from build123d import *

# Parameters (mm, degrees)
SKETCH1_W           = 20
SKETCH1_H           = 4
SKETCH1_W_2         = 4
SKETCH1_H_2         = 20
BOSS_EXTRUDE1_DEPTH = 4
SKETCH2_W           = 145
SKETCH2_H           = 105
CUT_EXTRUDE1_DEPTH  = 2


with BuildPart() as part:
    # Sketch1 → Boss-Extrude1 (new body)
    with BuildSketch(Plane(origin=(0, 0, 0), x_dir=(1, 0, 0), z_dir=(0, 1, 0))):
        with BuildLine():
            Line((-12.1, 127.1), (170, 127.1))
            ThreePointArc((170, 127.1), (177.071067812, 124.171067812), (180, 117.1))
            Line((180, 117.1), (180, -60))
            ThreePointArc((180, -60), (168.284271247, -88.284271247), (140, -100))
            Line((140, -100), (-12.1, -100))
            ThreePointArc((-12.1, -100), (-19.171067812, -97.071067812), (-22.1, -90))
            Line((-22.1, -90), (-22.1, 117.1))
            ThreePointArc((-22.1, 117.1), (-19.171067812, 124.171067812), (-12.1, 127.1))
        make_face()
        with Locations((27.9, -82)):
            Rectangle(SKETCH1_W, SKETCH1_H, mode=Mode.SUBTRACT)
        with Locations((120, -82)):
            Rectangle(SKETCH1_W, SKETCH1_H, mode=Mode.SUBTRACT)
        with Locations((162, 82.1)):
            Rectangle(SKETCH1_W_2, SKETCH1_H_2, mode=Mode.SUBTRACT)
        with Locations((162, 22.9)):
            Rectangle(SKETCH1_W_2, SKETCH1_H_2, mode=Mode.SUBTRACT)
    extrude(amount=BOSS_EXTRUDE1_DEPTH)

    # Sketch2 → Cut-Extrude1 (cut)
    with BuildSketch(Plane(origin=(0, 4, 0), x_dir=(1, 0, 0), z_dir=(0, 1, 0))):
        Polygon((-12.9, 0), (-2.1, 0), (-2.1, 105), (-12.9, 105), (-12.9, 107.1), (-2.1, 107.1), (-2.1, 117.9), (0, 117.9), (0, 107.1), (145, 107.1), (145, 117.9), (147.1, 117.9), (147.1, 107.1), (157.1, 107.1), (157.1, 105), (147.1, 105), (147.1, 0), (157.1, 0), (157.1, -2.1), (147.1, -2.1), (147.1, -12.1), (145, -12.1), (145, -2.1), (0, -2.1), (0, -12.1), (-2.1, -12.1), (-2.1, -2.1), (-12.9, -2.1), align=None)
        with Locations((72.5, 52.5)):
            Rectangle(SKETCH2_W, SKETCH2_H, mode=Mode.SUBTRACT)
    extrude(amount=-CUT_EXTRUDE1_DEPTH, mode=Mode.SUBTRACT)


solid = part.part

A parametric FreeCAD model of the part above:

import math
import FreeCAD as App
import Part
import Sketcher
from FreeCAD import Vector

doc = App.newDocument("Part")
body = doc.addObject("PartDesign::Body", "Body")

# Sketch on XZ plane
sketch1 = body.newObject("Sketcher::SketchObject", "Sketch")
sketch1.AttachmentSupport = (doc.getObject("XZ_Plane"), [""])
sketch1.MapMode = "FlatFace"
sketch1.addGeometry(Part.LineSegment(Vector(170, -127.1, 0), Vector(-12.1, -127.1, 0)), False)
sketch1.addGeometry(Part.ArcOfCircle(Part.Circle(Vector(-12.1, -117.1, 0), Vector(0, 0, 1), 10), math.radians(180), math.radians(270)), False)
sketch1.addGeometry(Part.LineSegment(Vector(-22.1, -117.1, 0), Vector(-22.1, 90, 0)), False)
sketch1.addGeometry(Part.ArcOfCircle(Part.Circle(Vector(-12.1, 90, 0), Vector(0, 0, 1), 10), math.radians(90), math.radians(180)), False)
sketch1.addGeometry(Part.LineSegment(Vector(-12.1, 100, 0), Vector(140, 100, 0)), False)
sketch1.addGeometry(Part.ArcOfCircle(Part.Circle(Vector(140, 60, 0), Vector(0, 0, 1), 40), math.radians(0), math.radians(90)), False)
sketch1.addGeometry(Part.LineSegment(Vector(180, 60, 0), Vector(180, -117.1, 0)), False)
sketch1.addGeometry(Part.ArcOfCircle(Part.Circle(Vector(170, -117.1, 0), Vector(0, 0, 1), 10), math.radians(-90), math.radians(0)), False)
sketch1.addGeometry(Part.LineSegment(Vector(110, 84, 0), Vector(110, 80, 0)), False)
sketch1.addGeometry(Part.LineSegment(Vector(110, 80, 0), Vector(130, 80, 0)), False)
sketch1.addGeometry(Part.LineSegment(Vector(130, 80, 0), Vector(130, 84, 0)), False)
sketch1.addGeometry(Part.LineSegment(Vector(130, 84, 0), Vector(110, 84, 0)), False)
sketch1.addGeometry(Part.LineSegment(Vector(17.9, 84, 0), Vector(17.9, 80, 0)), False)
sketch1.addGeometry(Part.LineSegment(Vector(17.9, 80, 0), Vector(37.9, 80, 0)), False)
sketch1.addGeometry(Part.LineSegment(Vector(37.9, 80, 0), Vector(37.9, 84, 0)), False)
sketch1.addGeometry(Part.LineSegment(Vector(37.9, 84, 0), Vector(17.9, 84, 0)), False)
sketch1.addGeometry(Part.LineSegment(Vector(160, -12.9, 0), Vector(160, -32.9, 0)), False)
sketch1.addGeometry(Part.LineSegment(Vector(160, -32.9, 0), Vector(164, -32.9, 0)), False)
sketch1.addGeometry(Part.LineSegment(Vector(164, -32.9, 0), Vector(164, -12.9, 0)), False)
sketch1.addGeometry(Part.LineSegment(Vector(164, -12.9, 0), Vector(160, -12.9, 0)), False)
sketch1.addGeometry(Part.LineSegment(Vector(160, -72.1, 0), Vector(160, -92.1, 0)), False)
sketch1.addGeometry(Part.LineSegment(Vector(160, -92.1, 0), Vector(164, -92.1, 0)), False)
sketch1.addGeometry(Part.LineSegment(Vector(164, -92.1, 0), Vector(164, -72.1, 0)), False)
sketch1.addGeometry(Part.LineSegment(Vector(164, -72.1, 0), Vector(160, -72.1, 0)), False)
sketch1.addConstraint(Sketcher.Constraint("Tangent", 0, 2, 1, 2))
sketch1.addConstraint(Sketcher.Constraint("Tangent", 1, 1, 2, 1))
sketch1.addConstraint(Sketcher.Constraint("Tangent", 2, 2, 3, 2))
sketch1.addConstraint(Sketcher.Constraint("Tangent", 3, 1, 4, 1))
sketch1.addConstraint(Sketcher.Constraint("Tangent", 4, 2, 5, 2))
sketch1.addConstraint(Sketcher.Constraint("Tangent", 5, 1, 6, 1))
sketch1.addConstraint(Sketcher.Constraint("Tangent", 6, 2, 7, 2))
sketch1.addConstraint(Sketcher.Constraint("Tangent", 7, 1, 0, 1))
sketch1.addConstraint(Sketcher.Constraint("Coincident", 8, 2, 9, 1))
sketch1.addConstraint(Sketcher.Constraint("Coincident", 9, 2, 10, 1))
sketch1.addConstraint(Sketcher.Constraint("Coincident", 10, 2, 11, 1))
sketch1.addConstraint(Sketcher.Constraint("Coincident", 11, 2, 8, 1))
sketch1.addConstraint(Sketcher.Constraint("Coincident", 12, 2, 13, 1))
sketch1.addConstraint(Sketcher.Constraint("Coincident", 13, 2, 14, 1))
sketch1.addConstraint(Sketcher.Constraint("Coincident", 14, 2, 15, 1))
sketch1.addConstraint(Sketcher.Constraint("Coincident", 15, 2, 12, 1))
sketch1.addConstraint(Sketcher.Constraint("Coincident", 16, 2, 17, 1))
sketch1.addConstraint(Sketcher.Constraint("Coincident", 17, 2, 18, 1))
sketch1.addConstraint(Sketcher.Constraint("Coincident", 18, 2, 19, 1))
sketch1.addConstraint(Sketcher.Constraint("Coincident", 19, 2, 16, 1))
sketch1.addConstraint(Sketcher.Constraint("Coincident", 20, 2, 21, 1))
sketch1.addConstraint(Sketcher.Constraint("Coincident", 21, 2, 22, 1))
sketch1.addConstraint(Sketcher.Constraint("Coincident", 22, 2, 23, 1))
sketch1.addConstraint(Sketcher.Constraint("Coincident", 23, 2, 20, 1))
sketch1.addConstraint(Sketcher.Constraint("Horizontal", 0))
sketch1.addConstraint(Sketcher.Constraint("Vertical", 2))
sketch1.addConstraint(Sketcher.Constraint("Horizontal", 4))
sketch1.addConstraint(Sketcher.Constraint("Vertical", 6))
sketch1.addConstraint(Sketcher.Constraint("Vertical", 8))
sketch1.addConstraint(Sketcher.Constraint("Horizontal", 9))
sketch1.addConstraint(Sketcher.Constraint("Vertical", 10))
sketch1.addConstraint(Sketcher.Constraint("Horizontal", 11))
sketch1.addConstraint(Sketcher.Constraint("Vertical", 12))
sketch1.addConstraint(Sketcher.Constraint("Horizontal", 13))
sketch1.addConstraint(Sketcher.Constraint("Vertical", 14))
sketch1.addConstraint(Sketcher.Constraint("Horizontal", 15))
sketch1.addConstraint(Sketcher.Constraint("Vertical", 16))
sketch1.addConstraint(Sketcher.Constraint("Horizontal", 17))
sketch1.addConstraint(Sketcher.Constraint("Vertical", 18))
sketch1.addConstraint(Sketcher.Constraint("Horizontal", 19))
sketch1.addConstraint(Sketcher.Constraint("Vertical", 20))
sketch1.addConstraint(Sketcher.Constraint("Horizontal", 21))
sketch1.addConstraint(Sketcher.Constraint("Vertical", 22))
sketch1.addConstraint(Sketcher.Constraint("Horizontal", 23))
sketch1.addConstraint(Sketcher.Constraint("Equal", 1, 3))
sketch1.addConstraint(Sketcher.Constraint("Equal", 3, 7))
sketch1.addConstraint(Sketcher.Constraint("Horizontal", 9, 2, 12, 2))
sketch1.addConstraint(Sketcher.Constraint("Horizontal", 11, 2, 14, 2))
sketch1.addConstraint(Sketcher.Constraint("Vertical", 19, 2, 20, 2))
sketch1.addConstraint(Sketcher.Constraint("Vertical", 18, 2, 21, 2))
sketch1.addConstraint(Sketcher.Constraint("Equal", 11, 13))
sketch1.addConstraint(Sketcher.Constraint("Equal", 23, 8))
sketch1.addConstraint(Sketcher.Constraint("Equal", 15, 16))
sketch1.addConstraint(Sketcher.Constraint("Equal", 18, 20))
sketch1.addConstraint(Sketcher.Constraint("Radius", 1, 10.0))
sketch1.addConstraint(Sketcher.Constraint("Radius", 5, 40.0))
sketch1.addConstraint(Sketcher.Constraint("DistanceX", 9, 1, 9, 2, 20.0))
sketch1.addConstraint(Sketcher.Constraint("DistanceX", 17, 1, 17, 2, 4.0))
sketch1.addConstraint(Sketcher.Constraint("DistanceX", 0, 2, 0, 1, 182.1))
sketch1.addConstraint(Sketcher.Constraint("DistanceY", 2, 1, 2, 2, 207.1))
sketch1.addConstraint(Sketcher.Constraint("DistanceY", -1, 1, 3, 3, 90.0))
sketch1.addConstraint(Sketcher.Constraint("DistanceX", -1, 1, 5, 3, 140.0))
sketch1.addConstraint(Sketcher.Constraint("DistanceX", -1, 1, 8, 2, 110.0))
sketch1.addConstraint(Sketcher.Constraint("DistanceY", -1, 1, 8, 2, 80.0))
sketch1.addConstraint(Sketcher.Constraint("DistanceX", -1, 1, 16, 2, 160.0))
sketch1.addConstraint(Sketcher.Constraint("DistanceX", 3, 3, 12, 2, 30.0))
sketch1.addConstraint(Sketcher.Constraint("DistanceY", 7, 3, 20, 2, 25.0))
sketch1.addConstraint(Sketcher.Constraint("DistanceY", 16, 2, -1, 1, 32.9))
pad1 = body.newObject("PartDesign::Pad", "Pad")
pad1.Profile = sketch1
pad1.Length = 4
pad1.Reversed = True

# Sketch on XZ plane
sketch2 = body.newObject("Sketcher::SketchObject", "Sketch001")
sketch2.AttachmentSupport = (doc.getObject("XZ_Plane"), [""])
sketch2.MapMode = "FlatFace"
sketch2.AttachmentOffset = App.Placement(Vector(0, 0, -4), App.Rotation())
sketch2.addGeometry(Part.LineSegment(Vector(-2.1, 0, 0), Vector(-12.9, 0, 0)), False)
sketch2.addGeometry(Part.LineSegment(Vector(-12.9, 0, 0), Vector(-12.9, 2.1, 0)), False)
sketch2.addGeometry(Part.LineSegment(Vector(-12.9, 2.1, 0), Vector(-2.1, 2.1, 0)), False)
sketch2.addGeometry(Part.LineSegment(Vector(-2.1, 2.1, 0), Vector(-2.1, 12.1, 0)), False)
sketch2.addGeometry(Part.LineSegment(Vector(-2.1, 12.1, 0), Vector(0, 12.1, 0)), False)
sketch2.addGeometry(Part.LineSegment(Vector(0, 12.1, 0), Vector(0, 2.1, 0)), False)
sketch2.addGeometry(Part.LineSegment(Vector(0, 2.1, 0), Vector(145, 2.1, 0)), False)
sketch2.addGeometry(Part.LineSegment(Vector(145, 2.1, 0), Vector(145, 12.1, 0)), False)
sketch2.addGeometry(Part.LineSegment(Vector(145, 12.1, 0), Vector(147.1, 12.1, 0)), False)
sketch2.addGeometry(Part.LineSegment(Vector(147.1, 12.1, 0), Vector(147.1, 2.1, 0)), False)
sketch2.addGeometry(Part.LineSegment(Vector(147.1, 2.1, 0), Vector(157.1, 2.1, 0)), False)
sketch2.addGeometry(Part.LineSegment(Vector(157.1, 2.1, 0), Vector(157.1, 0, 0)), False)
sketch2.addGeometry(Part.LineSegment(Vector(157.1, 0, 0), Vector(147.1, 0, 0)), False)
sketch2.addGeometry(Part.LineSegment(Vector(147.1, 0, 0), Vector(147.1, -105, 0)), False)
sketch2.addGeometry(Part.LineSegment(Vector(147.1, -105, 0), Vector(157.1, -105, 0)), False)
sketch2.addGeometry(Part.LineSegment(Vector(157.1, -105, 0), Vector(157.1, -107.1, 0)), False)
sketch2.addGeometry(Part.LineSegment(Vector(157.1, -107.1, 0), Vector(147.1, -107.1, 0)), False)
sketch2.addGeometry(Part.LineSegment(Vector(147.1, -107.1, 0), Vector(147.1, -117.9, 0)), False)
sketch2.addGeometry(Part.LineSegment(Vector(147.1, -117.9, 0), Vector(145, -117.9, 0)), False)
sketch2.addGeometry(Part.LineSegment(Vector(145, -117.9, 0), Vector(145, -107.1, 0)), False)
sketch2.addGeometry(Part.LineSegment(Vector(145, -107.1, 0), Vector(0, -107.1, 0)), False)
sketch2.addGeometry(Part.LineSegment(Vector(0, -107.1, 0), Vector(0, -117.9, 0)), False)
sketch2.addGeometry(Part.LineSegment(Vector(0, -117.9, 0), Vector(-2.1, -117.9, 0)), False)
sketch2.addGeometry(Part.LineSegment(Vector(-2.1, -117.9, 0), Vector(-2.1, -107.1, 0)), False)
sketch2.addGeometry(Part.LineSegment(Vector(-2.1, -107.1, 0), Vector(-12.9, -107.1, 0)), False)
sketch2.addGeometry(Part.LineSegment(Vector(-12.9, -107.1, 0), Vector(-12.9, -105, 0)), False)
sketch2.addGeometry(Part.LineSegment(Vector(-12.9, -105, 0), Vector(-2.1, -105, 0)), False)
sketch2.addGeometry(Part.LineSegment(Vector(-2.1, -105, 0), Vector(-2.1, 0, 0)), False)
sketch2.addGeometry(Part.LineSegment(Vector(0, 0, 0), Vector(0, -105, 0)), False)
sketch2.addGeometry(Part.LineSegment(Vector(0, -105, 0), Vector(145, -105, 0)), False)
sketch2.addGeometry(Part.LineSegment(Vector(145, -105, 0), Vector(145, 0, 0)), False)
sketch2.addGeometry(Part.LineSegment(Vector(145, 0, 0), Vector(0, 0, 0)), False)
sketch2.addConstraint(Sketcher.Constraint("Coincident", 0, 2, 1, 1))
sketch2.addConstraint(Sketcher.Constraint("Coincident", 1, 2, 2, 1))
sketch2.addConstraint(Sketcher.Constraint("Coincident", 2, 2, 3, 1))
sketch2.addConstraint(Sketcher.Constraint("Coincident", 3, 2, 4, 1))
sketch2.addConstraint(Sketcher.Constraint("Coincident", 4, 2, 5, 1))
sketch2.addConstraint(Sketcher.Constraint("Coincident", 5, 2, 6, 1))
sketch2.addConstraint(Sketcher.Constraint("Coincident", 6, 2, 7, 1))
sketch2.addConstraint(Sketcher.Constraint("Coincident", 7, 2, 8, 1))
sketch2.addConstraint(Sketcher.Constraint("Coincident", 8, 2, 9, 1))
sketch2.addConstraint(Sketcher.Constraint("Coincident", 9, 2, 10, 1))
sketch2.addConstraint(Sketcher.Constraint("Coincident", 10, 2, 11, 1))
sketch2.addConstraint(Sketcher.Constraint("Coincident", 11, 2, 12, 1))
sketch2.addConstraint(Sketcher.Constraint("Coincident", 12, 2, 13, 1))
sketch2.addConstraint(Sketcher.Constraint("Coincident", 13, 2, 14, 1))
sketch2.addConstraint(Sketcher.Constraint("Coincident", 14, 2, 15, 1))
sketch2.addConstraint(Sketcher.Constraint("Coincident", 15, 2, 16, 1))
sketch2.addConstraint(Sketcher.Constraint("Coincident", 16, 2, 17, 1))
sketch2.addConstraint(Sketcher.Constraint("Coincident", 17, 2, 18, 1))
sketch2.addConstraint(Sketcher.Constraint("Coincident", 18, 2, 19, 1))
sketch2.addConstraint(Sketcher.Constraint("Coincident", 19, 2, 20, 1))
sketch2.addConstraint(Sketcher.Constraint("Coincident", 20, 2, 21, 1))
sketch2.addConstraint(Sketcher.Constraint("Coincident", 21, 2, 22, 1))
sketch2.addConstraint(Sketcher.Constraint("Coincident", 22, 2, 23, 1))
sketch2.addConstraint(Sketcher.Constraint("Coincident", 23, 2, 24, 1))
sketch2.addConstraint(Sketcher.Constraint("Coincident", 24, 2, 25, 1))
sketch2.addConstraint(Sketcher.Constraint("Coincident", 25, 2, 26, 1))
sketch2.addConstraint(Sketcher.Constraint("Coincident", 26, 2, 27, 1))
sketch2.addConstraint(Sketcher.Constraint("Coincident", 27, 2, 0, 1))
sketch2.addConstraint(Sketcher.Constraint("Coincident", 28, 2, 29, 1))
sketch2.addConstraint(Sketcher.Constraint("Coincident", 29, 2, 30, 1))
sketch2.addConstraint(Sketcher.Constraint("Coincident", 30, 2, 31, 1))
sketch2.addConstraint(Sketcher.Constraint("Coincident", 31, 2, 28, 1))
sketch2.addConstraint(Sketcher.Constraint("Horizontal", 0))
sketch2.addConstraint(Sketcher.Constraint("Vertical", 1))
sketch2.addConstraint(Sketcher.Constraint("Horizontal", 2))
sketch2.addConstraint(Sketcher.Constraint("Vertical", 3))
sketch2.addConstraint(Sketcher.Constraint("Horizontal", 4))
sketch2.addConstraint(Sketcher.Constraint("Vertical", 5))
sketch2.addConstraint(Sketcher.Constraint("Horizontal", 6))
sketch2.addConstraint(Sketcher.Constraint("Vertical", 7))
sketch2.addConstraint(Sketcher.Constraint("Horizontal", 8))
sketch2.addConstraint(Sketcher.Constraint("Vertical", 9))
sketch2.addConstraint(Sketcher.Constraint("Horizontal", 10))
sketch2.addConstraint(Sketcher.Constraint("Vertical", 11))
sketch2.addConstraint(Sketcher.Constraint("Horizontal", 12))
sketch2.addConstraint(Sketcher.Constraint("Vertical", 13))
sketch2.addConstraint(Sketcher.Constraint("Horizontal", 14))
sketch2.addConstraint(Sketcher.Constraint("Vertical", 15))
sketch2.addConstraint(Sketcher.Constraint("Horizontal", 16))
sketch2.addConstraint(Sketcher.Constraint("Vertical", 17))
sketch2.addConstraint(Sketcher.Constraint("Horizontal", 18))
sketch2.addConstraint(Sketcher.Constraint("Vertical", 19))
sketch2.addConstraint(Sketcher.Constraint("Horizontal", 20))
sketch2.addConstraint(Sketcher.Constraint("Vertical", 21))
sketch2.addConstraint(Sketcher.Constraint("Horizontal", 22))
sketch2.addConstraint(Sketcher.Constraint("Vertical", 23))
sketch2.addConstraint(Sketcher.Constraint("Horizontal", 24))
sketch2.addConstraint(Sketcher.Constraint("Vertical", 25))
sketch2.addConstraint(Sketcher.Constraint("Horizontal", 26))
sketch2.addConstraint(Sketcher.Constraint("Vertical", 27))
sketch2.addConstraint(Sketcher.Constraint("Vertical", 28))
sketch2.addConstraint(Sketcher.Constraint("Horizontal", 29))
sketch2.addConstraint(Sketcher.Constraint("Vertical", 30))
sketch2.addConstraint(Sketcher.Constraint("Horizontal", 31))
sketch2.addConstraint(Sketcher.Constraint("Coincident", 31, 2, -1, 1))
sketch2.addConstraint(Sketcher.Constraint("PointOnObject", 0, 2, -1))
sketch2.addConstraint(Sketcher.Constraint("PointOnObject", 4, 2, -2))
sketch2.addConstraint(Sketcher.Constraint("PointOnObject", 11, 2, -1))
sketch2.addConstraint(Sketcher.Constraint("PointOnObject", 20, 2, -2))
sketch2.addConstraint(Sketcher.Constraint("Horizontal", 2, 2, 5, 2))
sketch2.addConstraint(Sketcher.Constraint("Horizontal", 4, 2, 7, 2))
sketch2.addConstraint(Sketcher.Constraint("Horizontal", 6, 2, 9, 2))
sketch2.addConstraint(Sketcher.Constraint("Horizontal", 16, 2, 19, 2))
sketch2.addConstraint(Sketcher.Constraint("Horizontal", 18, 2, 21, 2))
sketch2.addConstraint(Sketcher.Constraint("Horizontal", 20, 2, 23, 2))
sketch2.addConstraint(Sketcher.Constraint("Horizontal", 14, 2, 25, 2))
sketch2.addConstraint(Sketcher.Constraint("Horizontal", 26, 2, 28, 2))
sketch2.addConstraint(Sketcher.Constraint("Vertical", 9, 2, 12, 2))
sketch2.addConstraint(Sketcher.Constraint("Vertical", 11, 2, 14, 2))
sketch2.addConstraint(Sketcher.Constraint("Vertical", 13, 2, 16, 2))
sketch2.addConstraint(Sketcher.Constraint("Vertical", 7, 2, 18, 2))
sketch2.addConstraint(Sketcher.Constraint("Vertical", 3, 2, 22, 2))
sketch2.addConstraint(Sketcher.Constraint("Vertical", 1, 2, 24, 2))
sketch2.addConstraint(Sketcher.Constraint("Vertical", 23, 2, 26, 2))
sketch2.addConstraint(Sketcher.Constraint("Vertical", 19, 2, 29, 2))
sketch2.addConstraint(Sketcher.Constraint("Equal", 4, 8))
sketch2.addConstraint(Sketcher.Constraint("Equal", 22, 1))
sketch2.addConstraint(Sketcher.Constraint("Equal", 16, 3))
sketch2.addConstraint(Sketcher.Constraint("Equal", 11, 15))
sketch2.addConstraint(Sketcher.Constraint("Equal", 26, 17))
sketch2.addConstraint(Sketcher.Constraint("DistanceX", 6, 1, 6, 2, 145.0))
sketch2.addConstraint(Sketcher.Constraint("DistanceX", 10, 1, 10, 2, 10.0))
sketch2.addConstraint(Sketcher.Constraint("DistanceY", 13, 2, 13, 1, 105.0))
sketch2.addConstraint(Sketcher.Constraint("DistanceX", 0, 2, 0, 1, 10.8))
sketch2.addConstraint(Sketcher.Constraint("DistanceX", 4, 1, 4, 2, 2.1))
pocket1 = body.newObject("PartDesign::Pocket", "Pocket")
pocket1.Profile = sketch2
pocket1.Length = 2
pocket1.Reversed = True

doc.recompute()
